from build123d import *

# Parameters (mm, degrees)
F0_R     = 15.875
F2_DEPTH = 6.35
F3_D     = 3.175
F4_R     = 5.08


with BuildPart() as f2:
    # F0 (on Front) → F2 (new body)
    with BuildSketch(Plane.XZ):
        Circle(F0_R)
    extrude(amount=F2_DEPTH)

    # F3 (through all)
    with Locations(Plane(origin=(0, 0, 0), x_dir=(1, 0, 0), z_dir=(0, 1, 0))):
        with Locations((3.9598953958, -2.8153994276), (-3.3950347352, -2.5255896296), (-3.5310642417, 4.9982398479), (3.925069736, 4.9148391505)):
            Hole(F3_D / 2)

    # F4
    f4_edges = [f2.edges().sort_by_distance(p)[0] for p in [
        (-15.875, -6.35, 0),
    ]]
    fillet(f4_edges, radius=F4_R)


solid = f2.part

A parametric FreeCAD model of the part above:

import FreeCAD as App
import Part
import Sketcher
Q = App.Units.Quantity


def edges_at(feature, points):
    """Names of the edges that pass closest to the given points."""
    edges = feature.Shape.Edges
    near = lambda p: min(range(len(edges)), key=lambda i: edges[i].distToShape(Part.Vertex(*p))[0])
    return sorted({f"Edge{near(p) + 1}" for p in points})

doc = App.newDocument("Part")
body = doc.addObject("PartDesign::Body", "Body")

# Sketch on XZ plane
sketch1 = body.newObject("Sketcher::SketchObject", "Sketch")
sketch1.AttachmentSupport = (doc.getObject("XZ_Plane"), [""])
sketch1.MapMode = "FlatFace"
sketch1.addGeometry(Part.Circle(App.Vector(0, 0, 0), App.Vector(0, 0, 1), 15.875), False)
sketch1.addConstraint([
    Sketcher.Constraint("Coincident", 0, 3, -1, 1),
    Sketcher.Constraint("Diameter", 0, Q("1.25 in")),
])
pad1 = body.newObject("PartDesign::Pad", "Pad")
pad1.Profile = sketch1
pad1.Length = Q("0.25 in")

# Sketch on XZ plane
sketch2 = body.newObject("Sketcher::SketchObject", "Sketch001")
sketch2.AttachmentSupport = (doc.getObject("XZ_Plane"), [""])
sketch2.MapMode = "FlatFace"
sketch2.addGeometry([
    Part.Circle(App.Vector(3.959895, 2.815399, 0), App.Vector(0, 0, 1), 1.5875),
    Part.Circle(App.Vector(-3.395035, 2.52559, 0), App.Vector(0, 0, 1), 1.5875),
    Part.Circle(App.Vector(-3.531064, -4.99824, 0), App.Vector(0, 0, 1), 1.5875),
    Part.Circle(App.Vector(3.92507, -4.914839, 0), App.Vector(0, 0, 1), 1.5875),
], False)
sketch2.addConstraint([
    Sketcher.Constraint("Equal", 0, 1),
    Sketcher.Constraint("Equal", 1, 2),
    Sketcher.Constraint("Equal", 2, 3),
    Sketcher.Constraint("Diameter", 0, Q("0.125 in")),
    Sketcher.Constraint("DistanceY", -1, 1, 0, 3, Q("2.815399 mm")),
    Sketcher.Constraint("DistanceY", 2, 3, 3, 3, Q("0.083401 mm")),
    Sketcher.Constraint("DistanceY", -1, 1, 1, 3, Q("2.52559 mm")),
    Sketcher.Constraint("DistanceY", 2, 3, -1, 1, Q("4.99824 mm")),
    Sketcher.Constraint("DistanceX", -1, 1, 3, 3, Q("3.92507 mm")),
    Sketcher.Constraint("DistanceX", 1, 3, 0, 3, Q("7.35493 mm")),
    Sketcher.Constraint("DistanceX", 2, 3, 1, 3, Q("0.13603 mm")),
    Sketcher.Constraint("DistanceX", -1, 1, 0, 3, Q("3.959895 mm")),
])
doc.recompute()
hole = body.newObject("PartDesign::Hole", "Hole")
hole.Profile = sketch2
hole.ThreadType = "None"
hole.Diameter = Q("0.125 in")
hole.DepthType = "ThroughAll"
hole.Reversed = True
doc.recompute()

fillet = body.newObject("PartDesign::Fillet", "Fillet")
fillet.Base = (hole, edges_at(hole, [(-15.875, -6.35, 0)]))
fillet.Radius = Q("0.2 in")

doc.recompute()
